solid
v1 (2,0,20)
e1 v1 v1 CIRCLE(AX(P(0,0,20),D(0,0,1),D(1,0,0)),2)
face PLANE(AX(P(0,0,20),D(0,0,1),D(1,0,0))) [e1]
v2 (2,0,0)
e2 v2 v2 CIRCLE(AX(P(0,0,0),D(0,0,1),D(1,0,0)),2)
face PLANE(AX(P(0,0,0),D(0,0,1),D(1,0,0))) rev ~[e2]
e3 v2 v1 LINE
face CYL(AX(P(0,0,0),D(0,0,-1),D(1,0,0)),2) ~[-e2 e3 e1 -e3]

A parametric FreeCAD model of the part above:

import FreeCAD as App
import Part
import Sketcher
Q = App.Units.Quantity

doc = App.newDocument("Part")
params = doc.addObject("Spreadsheet::Sheet", "Params")
for row, (alias, value) in enumerate([
    ("sketch1_diameter", "4 mm"),
    ("pad1_length", "20 mm"),
], start=1):
    params.set(f"A{row}", alias)
    params.set(f"B{row}", "=" + value)
    params.setAlias(f"B{row}", alias)

body = doc.addObject("PartDesign::Body", "Body")

sketch1 = body.newObject("Sketcher::SketchObject", "Sketch")
sketch1.AttachmentSupport = (doc.getObject("XY_Plane"), [""])
sketch1.MapMode = "FlatFace"
sketch1.addGeometry(Part.Circle(App.Vector(0, 0, 0), App.Vector(0, 0, 1), 2), False)
sketch1.addConstraint([
    Sketcher.Constraint("Coincident", 0, 3, -1, 1),
    Sketcher.Constraint("Diameter", 0, Q("4 mm")),
])
sketch1.setExpression("Constraints[1]", "Params.sketch1_diameter")
pad1 = body.newObject("PartDesign::Pad", "Pad")
pad1.Profile = sketch1
pad1.setExpression("Length", "Params.pad1_length")

doc.recompute()
